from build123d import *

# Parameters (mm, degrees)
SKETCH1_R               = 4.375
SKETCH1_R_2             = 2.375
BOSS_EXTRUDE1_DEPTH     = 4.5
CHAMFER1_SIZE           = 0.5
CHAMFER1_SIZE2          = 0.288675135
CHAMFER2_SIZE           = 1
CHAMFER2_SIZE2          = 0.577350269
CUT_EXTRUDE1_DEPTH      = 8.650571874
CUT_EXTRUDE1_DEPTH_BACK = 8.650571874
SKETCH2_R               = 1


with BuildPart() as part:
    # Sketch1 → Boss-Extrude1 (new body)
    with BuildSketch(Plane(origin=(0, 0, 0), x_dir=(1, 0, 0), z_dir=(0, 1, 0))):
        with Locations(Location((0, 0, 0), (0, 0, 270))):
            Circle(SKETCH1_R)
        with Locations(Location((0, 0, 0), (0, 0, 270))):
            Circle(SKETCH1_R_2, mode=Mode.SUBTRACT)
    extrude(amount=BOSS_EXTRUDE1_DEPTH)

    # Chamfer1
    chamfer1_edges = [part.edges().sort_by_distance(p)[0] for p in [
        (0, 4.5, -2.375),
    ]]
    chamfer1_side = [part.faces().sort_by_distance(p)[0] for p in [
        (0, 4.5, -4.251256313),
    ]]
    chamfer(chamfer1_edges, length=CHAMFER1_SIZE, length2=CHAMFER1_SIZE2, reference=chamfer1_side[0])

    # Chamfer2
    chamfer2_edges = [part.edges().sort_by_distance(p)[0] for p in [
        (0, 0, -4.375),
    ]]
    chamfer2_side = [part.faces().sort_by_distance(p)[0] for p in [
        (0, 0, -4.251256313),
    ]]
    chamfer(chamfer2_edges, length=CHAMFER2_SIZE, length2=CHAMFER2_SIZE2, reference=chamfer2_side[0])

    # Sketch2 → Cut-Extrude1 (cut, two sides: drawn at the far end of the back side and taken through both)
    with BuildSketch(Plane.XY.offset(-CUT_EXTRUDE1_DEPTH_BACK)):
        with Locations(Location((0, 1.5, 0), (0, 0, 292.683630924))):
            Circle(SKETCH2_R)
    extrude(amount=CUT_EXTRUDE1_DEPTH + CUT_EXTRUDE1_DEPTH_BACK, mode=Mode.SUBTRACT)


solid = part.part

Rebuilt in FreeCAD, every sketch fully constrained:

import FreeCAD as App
import Part
import Sketcher


def edges_at(feature, points):
    """Names of the edges that pass closest to the given points."""
    edges = feature.Shape.Edges
    near = lambda p: min(range(len(edges)), key=lambda i: edges[i].distToShape(Part.Vertex(*p))[0])
    return sorted({f"Edge{near(p) + 1}" for p in points})

doc = App.newDocument("Part")
body = doc.addObject("PartDesign::Body", "Body")

sketch1 = doc.addObject("Sketcher::SketchObject", "Sketch")
body.addObject(sketch1)
sketch1.AttachmentSupport = (doc.XZ_Plane, [""])
sketch1.MapMode = "FlatFace"
sketch1.addGeometry([
    Part.Circle(App.Vector(0, 0, 0), App.Vector(0, 0, 1), 4.4),
    Part.Circle(App.Vector(0, 0, 0), App.Vector(0, 0, 1), 2.4),
], False)
sketch1.addConstraint([
    Sketcher.Constraint("Coincident", 0, 3, -1, 1),
    Sketcher.Constraint("Coincident", 1, 3, -1, 1),
    Sketcher.Constraint("Diameter", 0, 8.75),
    Sketcher.Constraint("Diameter", 1, 4.75),
])
pad1 = doc.addObject("PartDesign::Pad", "Pad")
body.addObject(pad1)
pad1.Profile = sketch1
pad1.Length = 4.5
pad1.Reversed = True
doc.recompute()

chamfer = doc.addObject("PartDesign::Chamfer", "Chamfer")
body.addObject(chamfer)
chamfer.Base = (pad1, edges_at(pad1, [(0, 4.5, -2.375)]))
chamfer.ChamferType = "Two distances"
chamfer.Size = 0.5
chamfer.Size2 = 0.288675
chamfer.FlipDirection = True
doc.recompute()

chamfer2 = doc.addObject("PartDesign::Chamfer", "Chamfer001")
body.addObject(chamfer2)
chamfer2.Base = (chamfer, edges_at(chamfer, [(0, 0, -4.375)]))
chamfer2.ChamferType = "Two distances"
chamfer2.Size = 1
chamfer2.Size2 = 0.57735

sketch2 = doc.addObject("Sketcher::SketchObject", "Sketch001")
body.addObject(sketch2)
sketch2.AttachmentSupport = (doc.XY_Plane, [""])
sketch2.MapMode = "FlatFace"
sketch2.addGeometry(Part.Circle(App.Vector(0, 1.5, 0), App.Vector(0, 0, 1), 1), False)
sketch2.addConstraint([
    Sketcher.Constraint("PointOnObject", 0, 3, -2),
    Sketcher.Constraint("Diameter", 0, 2.0),
    Sketcher.Constraint("DistanceY", -1, 1, 0, 3, 1.5),
])
pocket1 = doc.addObject("PartDesign::Pocket", "Pocket")
body.addObject(pocket1)
pocket1.Profile = sketch2
pocket1.Type = "ThroughAll"
pocket1.Midplane = True

doc.recompute()
